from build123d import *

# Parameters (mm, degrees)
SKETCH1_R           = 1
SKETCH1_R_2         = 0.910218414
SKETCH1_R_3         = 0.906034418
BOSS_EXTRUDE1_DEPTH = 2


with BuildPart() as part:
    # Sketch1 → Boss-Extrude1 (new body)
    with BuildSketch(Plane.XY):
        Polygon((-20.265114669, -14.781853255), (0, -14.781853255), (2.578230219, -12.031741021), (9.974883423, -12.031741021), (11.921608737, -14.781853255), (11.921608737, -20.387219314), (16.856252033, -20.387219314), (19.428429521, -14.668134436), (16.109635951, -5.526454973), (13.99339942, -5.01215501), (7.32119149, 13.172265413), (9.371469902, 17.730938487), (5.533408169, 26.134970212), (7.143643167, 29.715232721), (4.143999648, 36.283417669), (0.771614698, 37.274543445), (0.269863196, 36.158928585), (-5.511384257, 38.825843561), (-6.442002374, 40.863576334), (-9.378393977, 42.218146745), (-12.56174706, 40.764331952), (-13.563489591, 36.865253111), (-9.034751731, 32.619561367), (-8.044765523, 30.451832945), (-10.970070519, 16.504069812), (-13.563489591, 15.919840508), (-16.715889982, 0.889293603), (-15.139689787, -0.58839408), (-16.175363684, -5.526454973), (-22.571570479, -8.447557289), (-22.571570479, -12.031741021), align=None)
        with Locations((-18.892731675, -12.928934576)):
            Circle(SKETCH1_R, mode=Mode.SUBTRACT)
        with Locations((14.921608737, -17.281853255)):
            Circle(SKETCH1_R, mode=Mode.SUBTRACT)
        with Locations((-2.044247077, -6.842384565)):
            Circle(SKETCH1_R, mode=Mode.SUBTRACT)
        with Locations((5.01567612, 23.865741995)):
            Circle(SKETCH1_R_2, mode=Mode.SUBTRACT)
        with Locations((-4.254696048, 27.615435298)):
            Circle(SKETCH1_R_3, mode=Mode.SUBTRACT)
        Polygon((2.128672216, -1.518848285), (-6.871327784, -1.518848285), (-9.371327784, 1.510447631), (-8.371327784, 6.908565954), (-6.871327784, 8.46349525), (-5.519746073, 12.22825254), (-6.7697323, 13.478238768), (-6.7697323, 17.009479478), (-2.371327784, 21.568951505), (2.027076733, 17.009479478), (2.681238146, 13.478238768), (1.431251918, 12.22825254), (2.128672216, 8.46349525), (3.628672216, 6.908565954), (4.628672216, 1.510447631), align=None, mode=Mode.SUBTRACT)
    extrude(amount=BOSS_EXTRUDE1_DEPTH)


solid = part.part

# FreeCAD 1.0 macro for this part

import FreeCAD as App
import Part
import Sketcher
from FreeCAD import Vector

doc = App.newDocument("Part")
body = doc.addObject("PartDesign::Body", "Body")

# Sketch on XY plane
sketch1 = body.newObject("Sketcher::SketchObject", "Sketch")
sketch1.AttachmentSupport = (doc.getObject("XY_Plane"), [""])
sketch1.MapMode = "FlatFace"
sketch1.addGeometry([
    Part.LineSegment(Vector(-20.265115, -14.781853, 0), Vector(0, -14.781853, 0)),  # 0
    Part.LineSegment(Vector(0, -14.781853, 0), Vector(2.57823, -12.031741, 0)),  # 1
    Part.LineSegment(Vector(2.57823, -12.031741, 0), Vector(9.974883, -12.031741, 0)),  # 2
    Part.LineSegment(Vector(9.974883, -12.031741, 0), Vector(11.921609, -14.781853, 0)),  # 3
    Part.LineSegment(Vector(11.921609, -14.781853, 0), Vector(11.921609, -20.387219, 0)),  # 4
    Part.LineSegment(Vector(11.921609, -20.387219, 0), Vector(16.856252, -20.387219, 0)),  # 5
    Part.LineSegment(Vector(16.856252, -20.387219, 0), Vector(19.42843, -14.668134, 0)),  # 6
    Part.LineSegment(Vector(19.42843, -14.668134, 0), Vector(16.109636, -5.526455, 0)),  # 7
    Part.LineSegment(Vector(16.109636, -5.526455, 0), Vector(13.993399, -5.012155, 0)),  # 8
    Part.LineSegment(Vector(13.993399, -5.012155, 0), Vector(7.321191, 13.172265, 0)),  # 9
    Part.LineSegment(Vector(7.321191, 13.172265, 0), Vector(9.37147, 17.730938, 0)),  # 10
    Part.LineSegment(Vector(9.37147, 17.730938, 0), Vector(5.533408, 26.13497, 0)),  # 11
    Part.LineSegment(Vector(5.533408, 26.13497, 0), Vector(7.143643, 29.715233, 0)),  # 12
    Part.LineSegment(Vector(7.143643, 29.715233, 0), Vector(4.144, 36.283418, 0)),  # 13
    Part.LineSegment(Vector(4.144, 36.283418, 0), Vector(0.771615, 37.274543, 0)),  # 14
    Part.LineSegment(Vector(0.771615, 37.274543, 0), Vector(0.269863, 36.158929, 0)),  # 15
    Part.LineSegment(Vector(0.269863, 36.158929, 0), Vector(-5.511384, 38.825844, 0)),  # 16
    Part.LineSegment(Vector(-5.511384, 38.825844, 0), Vector(-6.442002, 40.863576, 0)),  # 17
    Part.LineSegment(Vector(-6.442002, 40.863576, 0), Vector(-9.378394, 42.218147, 0)),  # 18
    Part.LineSegment(Vector(-9.378394, 42.218147, 0), Vector(-12.561747, 40.764332, 0)),  # 19
    Part.LineSegment(Vector(-12.561747, 40.764332, 0), Vector(-13.56349, 36.865253, 0)),  # 20
    Part.LineSegment(Vector(-13.56349, 36.865253, 0), Vector(-9.034752, 32.619561, 0)),  # 21
    Part.LineSegment(Vector(-9.034752, 32.619561, 0), Vector(-8.044766, 30.451833, 0)),  # 22
    Part.LineSegment(Vector(-8.044766, 30.451833, 0), Vector(-10.970071, 16.50407, 0)),  # 23
    Part.LineSegment(Vector(-10.970071, 16.50407, 0), Vector(-13.56349, 15.919841, 0)),  # 24
    Part.LineSegment(Vector(-13.56349, 15.919841, 0), Vector(-16.71589, 0.889294, 0)),  # 25
    Part.LineSegment(Vector(-16.71589, 0.889294, 0), Vector(-15.13969, -0.588394, 0)),  # 26
    Part.LineSegment(Vector(-15.13969, -0.588394, 0), Vector(-16.175364, -5.526455, 0)),  # 27
    Part.LineSegment(Vector(-16.175364, -5.526455, 0), Vector(-22.57157, -8.447557, 0)),  # 28
    Part.LineSegment(Vector(-22.57157, -8.447557, 0), Vector(-22.57157, -12.031741, 0)),  # 29
    Part.LineSegment(Vector(-22.57157, -12.031741, 0), Vector(-20.265115, -14.781853, 0)),  # 30
    Part.Circle(Vector(-18.892732, -12.928935, 0), Vector(0, 0, 1), 1),  # 31
    Part.Circle(Vector(-2.044247, -6.842385, 0), Vector(0, 0, 1), 1),  # 32
    Part.Circle(Vector(14.921609, -17.281853, 0), Vector(0, 0, 1), 1),  # 33
    Part.LineSegment(Vector(4.628672, 1.510448, 0), Vector(2.128672, -1.518848, 0)),  # 34
    Part.LineSegment(Vector(2.128672, -1.518848, 0), Vector(-6.871328, -1.518848, 0)),  # 35
    Part.LineSegment(Vector(-6.871328, -1.518848, 0), Vector(-9.371328, 1.510448, 0)),  # 36
    Part.LineSegment(Vector(-9.371328, 1.510448, 0), Vector(-8.371328, 6.908566, 0)),  # 37
    Part.LineSegment(Vector(-8.371328, 6.908566, 0), Vector(-6.871328, 8.463495, 0)),  # 38
    Part.LineSegment(Vector(-6.871328, 8.463495, 0), Vector(-5.519746, 12.228253, 0)),  # 39
    Part.LineSegment(Vector(-5.519746, 12.228253, 0), Vector(-6.769732, 13.478239, 0)),  # 40
    Part.LineSegment(Vector(-6.769732, 13.478239, 0), Vector(-6.769732, 17.009479, 0)),  # 41
    Part.LineSegment(Vector(-6.769732, 17.009479, 0), Vector(-2.371328, 21.568952, 0)),  # 42
    Part.LineSegment(Vector(-2.371328, 21.568952, 0), Vector(2.027077, 17.009479, 0)),  # 43
    Part.LineSegment(Vector(2.027077, 17.009479, 0), Vector(2.681238, 13.478239, 0)),  # 44
    Part.LineSegment(Vector(2.681238, 13.478239, 0), Vector(1.431252, 12.228253, 0)),  # 45
    Part.LineSegment(Vector(1.431252, 12.228253, 0), Vector(2.128672, 8.463495, 0)),  # 46
    Part.LineSegment(Vector(2.128672, 8.463495, 0), Vector(3.628672, 6.908566, 0)),  # 47
    Part.LineSegment(Vector(3.628672, 6.908566, 0), Vector(4.628672, 1.510448, 0)),  # 48
    Part.Circle(Vector(-4.254696, 27.615435, 0), Vector(0, 0, 1), 0.906034),  # 49
    Part.Circle(Vector(5.015676, 23.865742, 0), Vector(0, 0, 1), 0.910218),  # 50
], False)
sketch1.addConstraint([
    Sketcher.Constraint("Coincident", 0, 2, 1, 1),
    Sketcher.Constraint("Coincident", 1, 2, 2, 1),
    Sketcher.Constraint("Coincident", 2, 2, 3, 1),
    Sketcher.Constraint("Coincident", 3, 2, 4, 1),
    Sketcher.Constraint("Coincident", 4, 2, 5, 1),
    Sketcher.Constraint("Coincident", 5, 2, 6, 1),
    Sketcher.Constraint("Coincident", 6, 2, 7, 1),
    Sketcher.Constraint("Coincident", 7, 2, 8, 1),
    Sketcher.Constraint("Coincident", 8, 2, 9, 1),
    Sketcher.Constraint("Coincident", 9, 2, 10, 1),
    Sketcher.Constraint("Coincident", 10, 2, 11, 1),
    Sketcher.Constraint("Coincident", 11, 2, 12, 1),
    Sketcher.Constraint("Coincident", 12, 2, 13, 1),
    Sketcher.Constraint("Coincident", 13, 2, 14, 1),
    Sketcher.Constraint("Coincident", 14, 2, 15, 1),
    Sketcher.Constraint("Coincident", 15, 2, 16, 1),
    Sketcher.Constraint("Coincident", 16, 2, 17, 1),
    Sketcher.Constraint("Coincident", 17, 2, 18, 1),
    Sketcher.Constraint("Coincident", 18, 2, 19, 1),
    Sketcher.Constraint("Coincident", 19, 2, 20, 1),
    Sketcher.Constraint("Coincident", 20, 2, 21, 1),
    Sketcher.Constraint("Coincident", 21, 2, 22, 1),
    Sketcher.Constraint("Coincident", 22, 2, 23, 1),
    Sketcher.Constraint("Coincident", 23, 2, 24, 1),
    Sketcher.Constraint("Coincident", 24, 2, 25, 1),
    Sketcher.Constraint("Coincident", 25, 2, 26, 1),
    Sketcher.Constraint("Coincident", 26, 2, 27, 1),
    Sketcher.Constraint("Coincident", 27, 2, 28, 1),
    Sketcher.Constraint("Coincident", 28, 2, 29, 1),
    Sketcher.Constraint("Coincident", 29, 2, 30, 1),
    Sketcher.Constraint("Coincident", 30, 2, 0, 1),
    Sketcher.Constraint("Coincident", 34, 2, 35, 1),
    Sketcher.Constraint("Coincident", 35, 2, 36, 1),
    Sketcher.Constraint("Coincident", 36, 2, 37, 1),
    Sketcher.Constraint("Coincident", 37, 2, 38, 1),
    Sketcher.Constraint("Coincident", 38, 2, 39, 1),
    Sketcher.Constraint("Coincident", 39, 2, 40, 1),
    Sketcher.Constraint("Coincident", 40, 2, 41, 1),
    Sketcher.Constraint("Coincident", 41, 2, 42, 1),
    Sketcher.Constraint("Coincident", 42, 2, 43, 1),
    Sketcher.Constraint("Coincident", 43, 2, 44, 1),
    Sketcher.Constraint("Coincident", 44, 2, 45, 1),
    Sketcher.Constraint("Coincident", 45, 2, 46, 1),
    Sketcher.Constraint("Coincident", 46, 2, 47, 1),
    Sketcher.Constraint("Coincident", 47, 2, 48, 1),
    Sketcher.Constraint("Coincident", 48, 2, 34, 1),
    Sketcher.Constraint("Horizontal", 0),
    Sketcher.Constraint("Horizontal", 2),
    Sketcher.Constraint("Vertical", 4),
    Sketcher.Constraint("Horizontal", 5),
    Sketcher.Constraint("Vertical", 29),
    Sketcher.Constraint("Horizontal", 35),
    Sketcher.Constraint("Vertical", 41),
    Sketcher.Constraint("PointOnObject", 0, 2, -2),
    Sketcher.Constraint("Diameter", 31, 2.0),
    Sketcher.Constraint("Diameter", 32, 2.0),
    Sketcher.Constraint("Diameter", 33, 2.0),
    Sketcher.Constraint("DistanceX", 35, 2, 35, 1, 9.0),
    Sketcher.Constraint("DistanceX", 3, 2, 33, 3, 3.0),
    Sketcher.Constraint("DistanceX", 36, 2, 37, 2, 1.0),
    Sketcher.Constraint("DistanceX", 47, 2, 48, 2, 1.0),
    Sketcher.Constraint("DistanceY", 33, 3, 0, 2, 2.5),
    Sketcher.Constraint("DistanceY", 33, 3, 3, 2, 2.5),
    Sketcher.Constraint("DistanceX", 36, 2, 35, 2, 2.5),
    Sketcher.Constraint("DistanceX", 37, 2, 38, 2, 1.5),
    Sketcher.Constraint("DistanceX", 46, 2, 47, 2, 1.5),
    Sketcher.Constraint("DistanceX", 34, 2, 47, 2, 1.5),
    Sketcher.Constraint("Diameter", 49, 1.812069),
    Sketcher.Constraint("Diameter", 50, 1.820437),
    Sketcher.Constraint("DistanceX", -1, 1, 13, 2, 4.144),
    Sketcher.Constraint("DistanceX", 16, 2, 14, 2, 6.282999),
    Sketcher.Constraint("Distance", 3, 3.3694),
    Sketcher.Constraint("Distance", 27, 5.0455),
    Sketcher.Constraint("Distance", 42, 6.335199),
    Sketcher.Constraint("Distance", 43, 6.335199),
    Sketcher.Constraint("DistanceY", 41, 1, 41, 2, 3.531241),
    Sketcher.Constraint("DistanceX", -1, 1, 8, 2, 13.993399),
    Sketcher.Constraint("DistanceY", 3, 2, 7, 2, 9.255398),
    Sketcher.Constraint("DistanceY", 7, 2, 8, 2, 0.5143),
    Sketcher.Constraint("DistanceY", 50, 3, 14, 2, 13.408801),
    Sketcher.Constraint("DistanceY", 14, 2, 16, 2, 1.5513),
    Sketcher.Constraint("DistanceY", 24, 2, 50, 3, 7.945901),
    Sketcher.Constraint("DistanceX", 25, 2, 24, 2, 3.1524),
    Sketcher.Constraint("DistanceX", 25, 2, 26, 2, 1.5762),
    Sketcher.Constraint("DistanceY", 0, 2, 27, 2, 9.255398),
    Sketcher.Constraint("DistanceY", 40, 2, 24, 2, 2.441602),
    Sketcher.Constraint("DistanceX", 43, 2, 50, 3, 2.988599),
    Sketcher.Constraint("DistanceY", 44, 2, 10, 2, 4.2527),
    Sketcher.Constraint("DistanceY", 47, 2, 9, 2, 6.263699),
    Sketcher.Constraint("Distance", 9, 19.369861),
    Sketcher.Constraint("Distance", 13, 7.220728),
    Sketcher.Constraint("Distance", 16, 6.366731),
    Sketcher.Constraint("Distance", 17, 2.24018),
    Sketcher.Constraint("Distance", 18, 3.233768),
    Sketcher.Constraint("Distance", 22, 2.38309),
    Sketcher.Constraint("Distance", 23, 14.251228),
    Sketcher.Constraint("Distance", 24, 2.65841),
    Sketcher.Constraint("Distance", 25, 15.35757),
    Sketcher.Constraint("Distance", 26, 2.160548),
    Sketcher.Constraint("Distance", 30, 3.58927),
    Sketcher.Constraint("Distance", 37, 5.489962),
    Sketcher.Constraint("Distance", 38, 2.16051),
    Sketcher.Constraint("Distance", 39, 4.000021),
    Sketcher.Constraint("Distance", 44, 3.591321),
    Sketcher.Constraint("Distance", 46, 3.828811),
    Sketcher.Constraint("Distance", 47, 2.16051),
    Sketcher.Constraint("Distance", 48, 5.489962),
    Sketcher.Constraint("DistanceX", 0, 1, 0, 2, 20.265115),
    Sketcher.Constraint("DistanceX", 2, 1, 2, 2, 7.396653),
    Sketcher.Constraint("DistanceX", 5, 1, 5, 2, 4.934643),
    Sketcher.Constraint("DistanceY", 4, 2, 4, 1, 5.605366),
    Sketcher.Constraint("DistanceY", 29, 2, 29, 1, 3.584184),
    Sketcher.Constraint("DistanceX", 31, 3, -1, 1, 18.892732),
    Sketcher.Constraint("DistanceX", -1, 1, 33, 3, 14.921609),
    Sketcher.Constraint("DistanceY", -1, 1, 50, 3, 23.865742),
    Sketcher.Constraint("DistanceX", -1, 1, 1, 2, 2.57823),
    Sketcher.Constraint("DistanceY", 1, 2, -1, 1, 12.031741),
    Sketcher.Constraint("DistanceX", -1, 1, 6, 2, 19.42843),
    Sketcher.Constraint("DistanceX", -1, 1, 9, 2, 7.321191),
    Sketcher.Constraint("DistanceX", -1, 1, 10, 2, 9.37147),
    Sketcher.Constraint("DistanceY", -1, 1, 10, 2, 17.730938),
    Sketcher.Constraint("DistanceX", -1, 1, 11, 2, 5.533408),
    Sketcher.Constraint("DistanceY", -1, 1, 11, 2, 26.13497),
    Sketcher.Constraint("DistanceY", -1, 1, 15, 2, 36.158929),
    Sketcher.Constraint("DistanceY", -1, 1, 19, 2, 40.764332),
    Sketcher.Constraint("DistanceX", 20, 2, -1, 1, 13.56349),
    Sketcher.Constraint("DistanceX", 21, 2, -1, 1, 9.034752),
    Sketcher.Constraint("DistanceY", -1, 1, 21, 2, 32.619561),
    Sketcher.Constraint("DistanceX", 23, 2, -1, 1, 10.970071),
    Sketcher.Constraint("DistanceY", -1, 1, 23, 2, 16.50407),
    Sketcher.Constraint("DistanceX", 28, 2, -1, 1, 22.57157),
    Sketcher.Constraint("DistanceY", 34, 2, -1, 1, 1.518848),
    Sketcher.Constraint("DistanceY", -1, 1, 42, 2, 21.568952),
    Sketcher.Constraint("DistanceY", -1, 1, 43, 2, 17.009479),
    Sketcher.Constraint("DistanceX", -1, 1, 44, 2, 2.681238),
    Sketcher.Constraint("DistanceX", -1, 1, 45, 2, 1.431252),
    Sketcher.Constraint("DistanceY", 31, 3, 32, 3, 6.08655),
    Sketcher.Constraint("DistanceY", 33, 3, 32, 3, 10.439469),
    Sketcher.Constraint("DistanceX", 49, 3, 32, 3, 2.210449),
    Sketcher.Constraint("DistanceY", 32, 3, 49, 3, 34.45782),
    Sketcher.Constraint("DistanceX", 32, 3, 2, 2, 12.01913),
    Sketcher.Constraint("DistanceY", 33, 3, 6, 2, 2.613719),
    Sketcher.Constraint("DistanceY", 50, 3, 12, 2, 5.849491),
    Sketcher.Constraint("DistanceX", 49, 3, 12, 2, 11.398339),
    Sketcher.Constraint("DistanceX", 14, 2, 12, 2, 6.372028),
    Sketcher.Constraint("DistanceX", 17, 2, 16, 2, 0.930618),
    Sketcher.Constraint("DistanceX", 18, 2, 17, 2, 2.936392),
    Sketcher.Constraint("DistanceX", 19, 2, 15, 2, 12.83161),
    Sketcher.Constraint("DistanceY", 20, 2, 19, 2, 3.899079),
    Sketcher.Constraint("DistanceX", 32, 3, 34, 2, 4.172919),
    Sketcher.Constraint("DistanceY", 26, 2, 36, 2, 2.098842),
    Sketcher.Constraint("DistanceX", 38, 2, 39, 2, 1.351582),
    Sketcher.Constraint("Distance", 7, 9.725466),
])
pad1 = body.newObject("PartDesign::Pad", "Pad")
pad1.Profile = sketch1
pad1.Length = 2

doc.recompute()
